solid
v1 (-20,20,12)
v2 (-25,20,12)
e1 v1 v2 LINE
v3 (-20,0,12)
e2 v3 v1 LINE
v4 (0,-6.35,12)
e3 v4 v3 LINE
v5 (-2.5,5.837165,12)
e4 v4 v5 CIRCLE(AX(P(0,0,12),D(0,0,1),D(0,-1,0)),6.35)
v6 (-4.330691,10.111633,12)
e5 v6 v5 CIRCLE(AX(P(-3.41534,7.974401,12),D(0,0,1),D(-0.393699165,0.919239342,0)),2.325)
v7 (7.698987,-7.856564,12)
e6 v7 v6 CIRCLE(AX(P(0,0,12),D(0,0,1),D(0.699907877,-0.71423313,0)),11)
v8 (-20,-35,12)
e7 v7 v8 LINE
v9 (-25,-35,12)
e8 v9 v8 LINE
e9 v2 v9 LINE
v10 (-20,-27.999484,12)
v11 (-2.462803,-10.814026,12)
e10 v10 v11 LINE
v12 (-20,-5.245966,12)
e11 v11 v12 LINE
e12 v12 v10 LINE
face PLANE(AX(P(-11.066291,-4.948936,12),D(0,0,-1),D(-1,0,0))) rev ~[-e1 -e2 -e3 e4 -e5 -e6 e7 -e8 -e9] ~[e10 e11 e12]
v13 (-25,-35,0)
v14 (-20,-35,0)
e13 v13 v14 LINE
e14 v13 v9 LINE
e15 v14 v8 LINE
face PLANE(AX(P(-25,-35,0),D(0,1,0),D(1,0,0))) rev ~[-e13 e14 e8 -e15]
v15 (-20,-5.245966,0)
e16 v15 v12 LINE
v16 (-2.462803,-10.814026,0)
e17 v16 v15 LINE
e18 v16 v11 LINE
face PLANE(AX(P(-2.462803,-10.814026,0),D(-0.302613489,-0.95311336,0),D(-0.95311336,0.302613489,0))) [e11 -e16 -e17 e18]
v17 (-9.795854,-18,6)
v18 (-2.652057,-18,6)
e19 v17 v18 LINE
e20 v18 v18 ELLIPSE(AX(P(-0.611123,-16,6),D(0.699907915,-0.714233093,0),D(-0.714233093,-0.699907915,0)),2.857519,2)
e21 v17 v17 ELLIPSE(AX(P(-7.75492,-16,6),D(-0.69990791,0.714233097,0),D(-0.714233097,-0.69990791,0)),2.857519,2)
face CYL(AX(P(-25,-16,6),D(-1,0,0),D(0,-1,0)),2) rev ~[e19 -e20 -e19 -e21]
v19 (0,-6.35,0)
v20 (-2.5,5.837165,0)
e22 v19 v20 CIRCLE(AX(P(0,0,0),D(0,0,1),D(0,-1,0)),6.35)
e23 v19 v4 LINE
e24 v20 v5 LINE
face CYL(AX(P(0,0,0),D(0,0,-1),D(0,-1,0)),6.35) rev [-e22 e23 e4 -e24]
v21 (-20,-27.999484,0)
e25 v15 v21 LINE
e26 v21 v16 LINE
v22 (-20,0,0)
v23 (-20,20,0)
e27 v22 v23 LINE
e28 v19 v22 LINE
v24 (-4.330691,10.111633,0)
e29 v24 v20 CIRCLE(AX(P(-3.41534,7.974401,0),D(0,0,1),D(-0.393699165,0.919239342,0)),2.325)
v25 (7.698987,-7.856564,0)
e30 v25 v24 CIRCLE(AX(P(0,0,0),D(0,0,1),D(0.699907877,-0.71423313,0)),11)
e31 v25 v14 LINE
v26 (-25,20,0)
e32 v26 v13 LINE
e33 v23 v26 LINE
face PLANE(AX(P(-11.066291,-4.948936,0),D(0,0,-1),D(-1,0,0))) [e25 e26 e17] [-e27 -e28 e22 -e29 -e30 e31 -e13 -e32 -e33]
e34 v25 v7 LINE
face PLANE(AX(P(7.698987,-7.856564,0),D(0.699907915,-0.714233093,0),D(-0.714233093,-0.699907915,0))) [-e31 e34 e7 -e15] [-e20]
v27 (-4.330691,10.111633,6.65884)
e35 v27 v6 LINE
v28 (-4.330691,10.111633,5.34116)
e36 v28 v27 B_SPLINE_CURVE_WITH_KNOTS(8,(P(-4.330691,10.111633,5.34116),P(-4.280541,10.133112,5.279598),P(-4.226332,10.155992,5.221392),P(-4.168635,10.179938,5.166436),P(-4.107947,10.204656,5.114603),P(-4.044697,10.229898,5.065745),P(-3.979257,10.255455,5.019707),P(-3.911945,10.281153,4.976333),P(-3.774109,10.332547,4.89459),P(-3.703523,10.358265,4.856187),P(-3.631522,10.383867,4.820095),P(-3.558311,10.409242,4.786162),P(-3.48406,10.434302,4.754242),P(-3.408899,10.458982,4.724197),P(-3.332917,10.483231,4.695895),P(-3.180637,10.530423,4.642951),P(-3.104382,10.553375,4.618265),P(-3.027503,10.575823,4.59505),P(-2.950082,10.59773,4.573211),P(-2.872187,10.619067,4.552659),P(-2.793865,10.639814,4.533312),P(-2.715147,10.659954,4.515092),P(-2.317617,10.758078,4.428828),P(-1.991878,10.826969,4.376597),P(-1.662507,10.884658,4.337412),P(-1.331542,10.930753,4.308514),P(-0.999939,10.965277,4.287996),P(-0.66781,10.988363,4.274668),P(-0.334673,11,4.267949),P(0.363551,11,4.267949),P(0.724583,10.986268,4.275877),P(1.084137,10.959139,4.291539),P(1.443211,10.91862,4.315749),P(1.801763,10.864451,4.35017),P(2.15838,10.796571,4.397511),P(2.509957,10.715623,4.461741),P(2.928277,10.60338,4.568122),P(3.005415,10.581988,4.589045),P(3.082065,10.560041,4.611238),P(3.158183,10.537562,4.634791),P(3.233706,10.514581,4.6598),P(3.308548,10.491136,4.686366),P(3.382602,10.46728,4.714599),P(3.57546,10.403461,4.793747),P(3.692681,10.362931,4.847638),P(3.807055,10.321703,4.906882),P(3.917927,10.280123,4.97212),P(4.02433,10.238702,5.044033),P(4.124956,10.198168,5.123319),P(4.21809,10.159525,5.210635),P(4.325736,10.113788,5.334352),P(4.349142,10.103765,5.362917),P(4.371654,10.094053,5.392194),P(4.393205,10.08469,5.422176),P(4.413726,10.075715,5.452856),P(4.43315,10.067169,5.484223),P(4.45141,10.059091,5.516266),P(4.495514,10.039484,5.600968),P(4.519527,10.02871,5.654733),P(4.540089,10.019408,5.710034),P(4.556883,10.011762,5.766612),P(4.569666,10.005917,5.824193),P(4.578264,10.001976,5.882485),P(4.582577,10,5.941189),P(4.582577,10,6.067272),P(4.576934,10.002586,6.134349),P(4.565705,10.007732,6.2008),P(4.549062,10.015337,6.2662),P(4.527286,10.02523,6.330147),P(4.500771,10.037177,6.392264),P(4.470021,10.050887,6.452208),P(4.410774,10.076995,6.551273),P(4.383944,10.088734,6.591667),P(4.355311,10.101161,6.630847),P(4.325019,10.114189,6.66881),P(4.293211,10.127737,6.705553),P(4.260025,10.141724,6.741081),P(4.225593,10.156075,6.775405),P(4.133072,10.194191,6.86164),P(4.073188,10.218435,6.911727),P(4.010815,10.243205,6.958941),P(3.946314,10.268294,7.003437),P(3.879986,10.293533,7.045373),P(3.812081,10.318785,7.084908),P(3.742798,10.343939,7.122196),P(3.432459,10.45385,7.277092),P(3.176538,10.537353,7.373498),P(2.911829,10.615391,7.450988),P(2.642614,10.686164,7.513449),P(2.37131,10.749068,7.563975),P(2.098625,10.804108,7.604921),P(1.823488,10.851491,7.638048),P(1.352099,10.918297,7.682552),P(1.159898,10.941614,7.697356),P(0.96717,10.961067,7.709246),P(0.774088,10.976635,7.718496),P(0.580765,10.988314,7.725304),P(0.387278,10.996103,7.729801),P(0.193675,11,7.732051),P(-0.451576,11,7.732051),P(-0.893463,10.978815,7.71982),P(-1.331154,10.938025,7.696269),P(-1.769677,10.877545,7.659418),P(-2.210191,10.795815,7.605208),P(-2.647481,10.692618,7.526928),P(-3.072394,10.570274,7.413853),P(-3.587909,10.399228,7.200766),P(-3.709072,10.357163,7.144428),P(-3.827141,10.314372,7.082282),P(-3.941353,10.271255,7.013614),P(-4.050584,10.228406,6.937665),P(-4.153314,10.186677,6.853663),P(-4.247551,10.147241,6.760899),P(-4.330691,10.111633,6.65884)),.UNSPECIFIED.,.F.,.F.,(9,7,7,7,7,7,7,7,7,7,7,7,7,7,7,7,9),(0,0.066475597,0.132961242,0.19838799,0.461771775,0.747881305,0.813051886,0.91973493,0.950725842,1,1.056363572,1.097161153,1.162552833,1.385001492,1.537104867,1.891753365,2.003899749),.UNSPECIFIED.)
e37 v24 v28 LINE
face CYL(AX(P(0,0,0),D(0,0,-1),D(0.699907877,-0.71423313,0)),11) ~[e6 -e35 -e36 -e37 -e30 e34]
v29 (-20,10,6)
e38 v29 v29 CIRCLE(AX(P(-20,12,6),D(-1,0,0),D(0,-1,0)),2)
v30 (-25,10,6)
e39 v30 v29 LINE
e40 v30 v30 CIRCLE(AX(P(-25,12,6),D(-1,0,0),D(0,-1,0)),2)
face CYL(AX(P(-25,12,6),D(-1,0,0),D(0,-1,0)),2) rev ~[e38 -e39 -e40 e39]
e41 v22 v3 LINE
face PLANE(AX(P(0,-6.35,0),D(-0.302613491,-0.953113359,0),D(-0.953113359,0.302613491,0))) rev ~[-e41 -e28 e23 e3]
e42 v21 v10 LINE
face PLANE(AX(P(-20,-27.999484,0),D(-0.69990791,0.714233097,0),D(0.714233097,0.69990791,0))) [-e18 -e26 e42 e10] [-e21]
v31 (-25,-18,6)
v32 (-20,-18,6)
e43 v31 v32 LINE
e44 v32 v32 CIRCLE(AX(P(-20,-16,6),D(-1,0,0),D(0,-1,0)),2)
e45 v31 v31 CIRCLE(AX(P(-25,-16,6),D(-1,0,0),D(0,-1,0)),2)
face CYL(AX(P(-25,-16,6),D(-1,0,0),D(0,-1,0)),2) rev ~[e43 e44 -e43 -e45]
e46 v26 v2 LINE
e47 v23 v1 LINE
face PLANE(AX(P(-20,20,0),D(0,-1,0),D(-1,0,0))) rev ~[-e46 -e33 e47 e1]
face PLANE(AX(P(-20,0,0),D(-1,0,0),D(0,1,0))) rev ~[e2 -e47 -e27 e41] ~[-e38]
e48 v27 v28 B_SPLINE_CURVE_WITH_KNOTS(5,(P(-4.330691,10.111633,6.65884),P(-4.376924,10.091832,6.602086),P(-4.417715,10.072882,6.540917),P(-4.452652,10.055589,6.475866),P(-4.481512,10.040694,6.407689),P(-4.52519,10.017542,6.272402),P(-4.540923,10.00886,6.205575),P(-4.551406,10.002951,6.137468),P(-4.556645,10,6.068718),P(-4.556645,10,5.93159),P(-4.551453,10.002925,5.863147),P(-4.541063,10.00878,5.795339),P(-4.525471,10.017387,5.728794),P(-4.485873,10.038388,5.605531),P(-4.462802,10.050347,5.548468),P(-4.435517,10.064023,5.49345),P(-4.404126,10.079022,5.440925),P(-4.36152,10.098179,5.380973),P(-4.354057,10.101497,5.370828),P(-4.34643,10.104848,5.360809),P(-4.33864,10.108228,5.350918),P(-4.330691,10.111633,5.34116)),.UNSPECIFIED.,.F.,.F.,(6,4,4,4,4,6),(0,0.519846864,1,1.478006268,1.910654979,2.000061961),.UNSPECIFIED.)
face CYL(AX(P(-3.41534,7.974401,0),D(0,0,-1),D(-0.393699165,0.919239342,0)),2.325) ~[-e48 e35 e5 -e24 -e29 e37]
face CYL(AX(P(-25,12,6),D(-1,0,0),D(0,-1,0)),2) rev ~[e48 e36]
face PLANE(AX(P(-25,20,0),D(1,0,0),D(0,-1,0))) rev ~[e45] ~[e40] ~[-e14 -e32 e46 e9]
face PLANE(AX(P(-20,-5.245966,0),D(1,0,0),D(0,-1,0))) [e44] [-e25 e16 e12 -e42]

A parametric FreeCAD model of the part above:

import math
import FreeCAD as App
import Part
import Sketcher

V = App.Vector
Q = App.Units.Quantity


def add_polygon(sketch, points):
    """Adds a closed chain of lines whose ends are joined by coincident constraints."""
    first, n = sketch.GeometryCount, len(points)
    for a, b in zip(points, points[1:] + points[:1]):
        sketch.addGeometry(Part.LineSegment(App.Vector(*a, 0), App.Vector(*b, 0)), False)
    for i in range(n):
        sketch.addConstraint(Sketcher.Constraint("Coincident", first + i, 2, first + (i + 1) % n, 1))

doc = App.newDocument("Part")
body = doc.addObject("PartDesign::Body", "Body")

sketch1 = body.newObject("Sketcher::SketchObject", "Sketch")
sketch1.AttachmentSupport = (doc.getObject("XY_Plane"), [""])
sketch1.MapMode = "FlatFace"
sketch1.addGeometry(Part.ArcOfCircle(Part.Circle(V(0, 0, 0), V(0, 0, 1), 6.3), math.radians(-90), math.radians(113)), False)
sketch1.addGeometry(Part.LineSegment(V(0, -6.3, 0), V(-20, 0, 0)), False)
sketch1.addGeometry(Part.LineSegment(V(-20, 0, 0), V(-20, 20, 0)), False)
sketch1.addGeometry(Part.LineSegment(V(-20, 20, 0), V(-25, 20, 0)), False)
sketch1.addGeometry(Part.LineSegment(V(-25, 20, 0), V(-25, -35, 0)), False)
sketch1.addGeometry(Part.LineSegment(V(-25, -35, 0), V(-20, -35, 0)), False)
sketch1.addGeometry(Part.LineSegment(V(-20, -35, 0), V(7.7, -7.9, 0)), False)
sketch1.addGeometry(Part.ArcOfCircle(Part.Circle(V(0, 0, 0), V(0, 0, 1), 11), math.radians(-46), math.radians(113)), False)
sketch1.addGeometry(Part.ArcOfCircle(Part.Circle(V(-3.4, 8, 0), V(0, 0, 1), 2.3), math.radians(113), math.radians(293)), False)
add_polygon(sketch1, [(-20, -5.2), (-2.5, -10.8), (-20, -28)])
sketch1.addConstraint([
    Sketcher.Constraint("Coincident", 0, 1, 1, 1),
    Sketcher.Constraint("Coincident", 1, 2, 2, 1),
    Sketcher.Constraint("Coincident", 2, 2, 3, 1),
    Sketcher.Constraint("Coincident", 3, 2, 4, 1),
    Sketcher.Constraint("Coincident", 4, 2, 5, 1),
    Sketcher.Constraint("Coincident", 5, 2, 6, 1),
    Sketcher.Constraint("Tangent", 6, 2, 7, 1),
    Sketcher.Constraint("Tangent", 7, 2, 8, 1),
    Sketcher.Constraint("Coincident", 8, 2, 0, 2),
    Sketcher.Constraint("Vertical", 2),
    Sketcher.Constraint("Horizontal", 3),
    Sketcher.Constraint("Vertical", 4),
    Sketcher.Constraint("Horizontal", 5),
    Sketcher.Constraint("Vertical", 11),
    Sketcher.Constraint("Coincident", 0, 3, -1, 1),
    Sketcher.Constraint("Coincident", 7, 3, -1, 1),
    Sketcher.Constraint("PointOnObject", 0, 1, -2),
    Sketcher.Constraint("PointOnObject", 1, 2, -1),
    Sketcher.Constraint("Parallel", 1, 9),
    Sketcher.Constraint("Parallel", 6, 10),
    Sketcher.Constraint("Vertical", 2, 2, 5, 2),
    Sketcher.Constraint("Vertical", 5, 2, 10, 2),
    Sketcher.Constraint("Radius", 7, Q("11 mm")),
    Sketcher.Constraint("DistanceX", 3, 2, 3, 1, Q("5 mm")),
    Sketcher.Constraint("DistanceY", 2, 1, 2, 2, Q("20 mm")),
    Sketcher.Constraint("DistanceY", 4, 2, 4, 1, Q("55 mm")),
    Sketcher.Constraint("Radius", 0, Q("6.35 mm")),
    Sketcher.Constraint("DistanceX", 1, 2, -1, 1, Q("20 mm")),
    Sketcher.Constraint("DistanceX", 8, 2, -1, 1, Q("2.5 mm")),
    Sketcher.Constraint("DistanceY", -1, 1, 8, 3, Q("7.974401 mm")),
    Sketcher.Constraint("DistanceY", 11, 1, 11, 2, Q("22.753518 mm")),
    Sketcher.Constraint("DistanceY", 9, 2, 8, 2, Q("16.651191 mm")),
])
pad1 = body.newObject("PartDesign::Pad", "Pad")
pad1.Profile = sketch1
pad1.Length = 12

sketch2 = body.newObject("Sketcher::SketchObject", "Sketch001")
sketch2.AttachmentSupport = (doc.getObject("YZ_Plane"), [""])
sketch2.MapMode = "FlatFace"
sketch2.AttachmentOffset = App.Placement(V(0, 0, -25), App.Rotation())
sketch2.addGeometry([
    Part.Circle(V(12, 6, 0), V(0, 0, 1), 2),
    Part.Circle(V(-16, 6, 0), V(0, 0, 1), 2),
], False)
sketch2.addConstraint([
    Sketcher.Constraint("Equal", 0, 1),
    Sketcher.Constraint("Horizontal", 0, 3, 1, 3),
    Sketcher.Constraint("Diameter", 0, Q("4 mm")),
    Sketcher.Constraint("DistanceX", -1, 1, 0, 3, Q("12 mm")),
    Sketcher.Constraint("DistanceY", -1, 1, 0, 3, Q("6 mm")),
    Sketcher.Constraint("DistanceX", 1, 3, -1, 1, Q("16 mm")),
])
pocket1 = body.newObject("PartDesign::Pocket", "Pocket")
pocket1.Profile = sketch2
pocket1.Type = "ThroughAll"
pocket1.Reversed = True

doc.recompute()
